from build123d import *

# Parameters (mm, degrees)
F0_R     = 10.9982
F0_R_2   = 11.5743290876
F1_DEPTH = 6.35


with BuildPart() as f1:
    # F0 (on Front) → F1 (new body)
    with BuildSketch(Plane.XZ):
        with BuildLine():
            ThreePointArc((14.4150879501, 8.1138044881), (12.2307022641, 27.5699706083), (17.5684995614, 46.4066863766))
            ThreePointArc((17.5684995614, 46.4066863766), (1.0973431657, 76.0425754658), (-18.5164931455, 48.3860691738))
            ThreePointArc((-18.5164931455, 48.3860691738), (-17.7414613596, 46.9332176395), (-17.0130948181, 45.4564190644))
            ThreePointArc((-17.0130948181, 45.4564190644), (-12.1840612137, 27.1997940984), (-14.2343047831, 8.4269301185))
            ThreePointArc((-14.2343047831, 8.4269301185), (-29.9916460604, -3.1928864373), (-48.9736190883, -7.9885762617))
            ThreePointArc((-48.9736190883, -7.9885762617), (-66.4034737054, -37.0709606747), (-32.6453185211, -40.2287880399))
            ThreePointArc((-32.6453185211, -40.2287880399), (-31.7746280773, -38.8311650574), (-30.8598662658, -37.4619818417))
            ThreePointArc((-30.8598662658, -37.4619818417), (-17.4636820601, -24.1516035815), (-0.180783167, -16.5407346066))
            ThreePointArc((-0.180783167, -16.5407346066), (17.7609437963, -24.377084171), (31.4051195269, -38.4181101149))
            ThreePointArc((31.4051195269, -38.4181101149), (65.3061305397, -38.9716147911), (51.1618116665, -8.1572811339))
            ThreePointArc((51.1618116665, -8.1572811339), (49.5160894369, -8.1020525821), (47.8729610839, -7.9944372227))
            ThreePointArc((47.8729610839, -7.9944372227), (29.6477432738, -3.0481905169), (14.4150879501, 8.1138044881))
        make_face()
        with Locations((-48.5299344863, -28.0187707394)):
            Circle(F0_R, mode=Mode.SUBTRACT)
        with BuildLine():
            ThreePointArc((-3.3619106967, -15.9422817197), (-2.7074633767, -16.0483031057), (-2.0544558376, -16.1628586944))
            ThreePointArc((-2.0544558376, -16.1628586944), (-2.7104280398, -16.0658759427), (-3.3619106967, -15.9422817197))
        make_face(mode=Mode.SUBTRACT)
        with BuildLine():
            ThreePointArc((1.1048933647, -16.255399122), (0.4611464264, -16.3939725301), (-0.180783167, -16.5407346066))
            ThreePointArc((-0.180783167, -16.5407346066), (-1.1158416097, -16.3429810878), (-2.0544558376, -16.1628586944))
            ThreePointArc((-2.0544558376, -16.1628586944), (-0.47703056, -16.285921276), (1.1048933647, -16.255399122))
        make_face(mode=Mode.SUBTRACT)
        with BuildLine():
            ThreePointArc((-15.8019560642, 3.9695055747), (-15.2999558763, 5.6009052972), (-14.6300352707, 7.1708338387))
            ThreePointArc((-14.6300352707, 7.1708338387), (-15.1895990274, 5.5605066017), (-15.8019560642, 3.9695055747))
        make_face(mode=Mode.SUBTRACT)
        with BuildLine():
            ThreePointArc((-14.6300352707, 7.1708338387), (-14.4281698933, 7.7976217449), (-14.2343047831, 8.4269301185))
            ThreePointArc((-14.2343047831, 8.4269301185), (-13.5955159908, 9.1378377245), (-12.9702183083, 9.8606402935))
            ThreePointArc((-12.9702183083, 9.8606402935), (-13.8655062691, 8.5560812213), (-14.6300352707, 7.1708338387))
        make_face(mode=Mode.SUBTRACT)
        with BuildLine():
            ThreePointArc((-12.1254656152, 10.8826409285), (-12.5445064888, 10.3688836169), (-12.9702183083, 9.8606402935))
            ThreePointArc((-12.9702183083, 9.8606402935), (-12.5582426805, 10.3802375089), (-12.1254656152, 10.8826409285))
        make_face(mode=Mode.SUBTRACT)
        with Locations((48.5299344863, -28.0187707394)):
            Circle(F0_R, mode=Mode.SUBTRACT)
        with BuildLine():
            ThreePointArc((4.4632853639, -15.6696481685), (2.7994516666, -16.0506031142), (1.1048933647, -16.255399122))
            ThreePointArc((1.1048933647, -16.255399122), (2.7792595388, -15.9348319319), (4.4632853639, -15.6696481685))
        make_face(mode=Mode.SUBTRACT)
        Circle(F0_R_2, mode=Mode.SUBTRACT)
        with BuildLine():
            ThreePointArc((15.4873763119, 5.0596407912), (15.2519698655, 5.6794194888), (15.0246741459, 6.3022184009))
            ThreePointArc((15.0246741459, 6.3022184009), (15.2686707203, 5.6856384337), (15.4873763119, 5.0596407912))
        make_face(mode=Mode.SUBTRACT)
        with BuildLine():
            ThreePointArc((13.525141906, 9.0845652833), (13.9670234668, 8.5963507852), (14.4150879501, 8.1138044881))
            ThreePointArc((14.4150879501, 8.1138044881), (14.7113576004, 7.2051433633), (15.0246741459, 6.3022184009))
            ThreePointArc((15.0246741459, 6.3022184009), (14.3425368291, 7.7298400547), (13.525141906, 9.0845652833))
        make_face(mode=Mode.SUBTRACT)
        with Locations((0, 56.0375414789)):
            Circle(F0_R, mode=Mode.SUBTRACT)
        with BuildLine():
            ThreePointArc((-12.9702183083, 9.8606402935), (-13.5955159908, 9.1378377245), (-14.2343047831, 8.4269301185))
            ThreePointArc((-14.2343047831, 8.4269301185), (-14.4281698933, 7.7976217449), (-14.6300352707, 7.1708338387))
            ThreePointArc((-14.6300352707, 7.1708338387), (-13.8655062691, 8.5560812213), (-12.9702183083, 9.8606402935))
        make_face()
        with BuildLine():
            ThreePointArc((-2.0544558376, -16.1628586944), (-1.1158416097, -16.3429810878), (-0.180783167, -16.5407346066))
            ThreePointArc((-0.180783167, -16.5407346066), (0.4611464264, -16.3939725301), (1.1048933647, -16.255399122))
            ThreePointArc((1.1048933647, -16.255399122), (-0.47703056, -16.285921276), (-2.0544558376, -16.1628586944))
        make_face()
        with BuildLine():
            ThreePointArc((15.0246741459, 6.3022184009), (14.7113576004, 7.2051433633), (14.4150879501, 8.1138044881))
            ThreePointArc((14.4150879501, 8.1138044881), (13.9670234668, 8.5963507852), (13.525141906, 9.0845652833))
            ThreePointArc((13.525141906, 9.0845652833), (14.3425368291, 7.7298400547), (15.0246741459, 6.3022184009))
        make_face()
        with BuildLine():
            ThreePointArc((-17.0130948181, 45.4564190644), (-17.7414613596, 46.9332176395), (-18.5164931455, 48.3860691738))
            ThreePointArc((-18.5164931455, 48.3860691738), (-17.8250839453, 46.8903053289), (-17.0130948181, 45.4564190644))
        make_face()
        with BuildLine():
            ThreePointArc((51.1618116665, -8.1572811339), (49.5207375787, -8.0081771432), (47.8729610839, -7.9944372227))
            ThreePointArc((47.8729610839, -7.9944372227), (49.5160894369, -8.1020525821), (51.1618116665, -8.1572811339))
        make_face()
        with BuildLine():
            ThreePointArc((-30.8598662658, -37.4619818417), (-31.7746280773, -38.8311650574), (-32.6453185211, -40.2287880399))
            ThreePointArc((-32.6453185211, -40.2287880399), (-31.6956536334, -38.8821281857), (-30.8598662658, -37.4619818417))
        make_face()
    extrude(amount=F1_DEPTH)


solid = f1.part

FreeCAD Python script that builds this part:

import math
import FreeCAD as App
import Part
import Sketcher
Q = App.Units.Quantity

doc = App.newDocument("Part")
params = doc.addObject("Spreadsheet::Sheet", "Params")
for row, (alias, value) in enumerate([
    ("sketch1_diameter", "0.866 in"),
    ("sketch1_diameter2", "0.866 in"),
    ("sketch1_diameter3", "0.866 in"),
    ("pad1_length", "0.25 in"),
], start=1):
    params.set(f"A{row}", alias)
    params.set(f"B{row}", "=" + value)
    params.setAlias(f"B{row}", alias)

body = doc.addObject("PartDesign::Body", "Body")

sketch1 = doc.addObject("Sketcher::SketchObject", "Sketch")
body.addObject(sketch1)
sketch1.AttachmentSupport = (doc.XZ_Plane, [""])
sketch1.MapMode = "FlatFace"
sketch1.addGeometry(Part.ArcOfCircle(Part.Circle(App.Vector(52.072578, 43.529661, 0), App.Vector(0, 0, 1), 51.694966), math.radians(-136.757083), math.radians(-94.659754)), False)
sketch1.addGeometry(Part.ArcOfCircle(Part.Circle(App.Vector(62.845266, 23.401871, 0), App.Vector(0, 0, 1), 50.785895), math.radians(153.065188), math.radians(197.519464)), False)
sketch1.addGeometry(Part.ArcOfCircle(Part.Circle(App.Vector(0, 56.037541, 0), App.Vector(0, 0, 1), 20.035108), math.radians(-28.731061), math.radians(202.451623)), False)
sketch1.addGeometry(Part.ArcOfCircle(Part.Circle(App.Vector(0, 56.037541, 0), App.Vector(0, 0, 1), 20.035108), math.radians(-157.548377), math.radians(-148.120871)), False)
sketch1.addGeometry(Part.ArcOfCircle(Part.Circle(App.Vector(-63.734081, 23.331345, 0), App.Vector(0, 0, 1), 51.694966), math.radians(-16.757083), math.radians(25.340246)), False)
sketch1.addGeometry(Part.ArcOfCircle(Part.Circle(App.Vector(-51.689248, 42.724661, 0), App.Vector(0, 0, 1), 50.785895), math.radians(-86.934812), math.radians(-42.480536)), False)
sketch1.addGeometry(Part.ArcOfCircle(Part.Circle(App.Vector(-48.529934, -28.018771, 0), App.Vector(0, 0, 1), 20.035108), math.radians(91.268939), math.radians(322.451623)), False)
sketch1.addGeometry(Part.ArcOfCircle(Part.Circle(App.Vector(-48.529934, -28.018771, 0), App.Vector(0, 0, 1), 20.035108), math.radians(-37.548377), math.radians(-28.120871)), False)
sketch1.addGeometry(Part.ArcOfCircle(Part.Circle(App.Vector(11.661503, -66.861006, 0), App.Vector(0, 0, 1), 51.694966), math.radians(103.242917), math.radians(145.340246)), False)
sketch1.addGeometry(Part.ArcOfCircle(Part.Circle(App.Vector(-11.156018, -66.126532, 0), App.Vector(0, 0, 1), 50.785895), math.radians(33.065188), math.radians(77.519464)), False)
sketch1.addGeometry(Part.ArcOfCircle(Part.Circle(App.Vector(48.529934, -28.018771, 0), App.Vector(0, 0, 1), 20.035108), math.radians(-148.731061), math.radians(82.451623)), False)
sketch1.addGeometry(Part.ArcOfCircle(Part.Circle(App.Vector(48.529934, -28.018771, 0), App.Vector(0, 0, 1), 20.035108), math.radians(82.451623), math.radians(91.879129)), False)
sketch1.addGeometry(Part.Circle(App.Vector(-48.529934, -28.018771, 0), App.Vector(0, 0, 1), 10.9982), False)
sketch1.addGeometry(Part.ArcOfCircle(Part.Circle(App.Vector(-11.156018, -66.126533, 0), App.Vector(0, 0, 1), 50.785895), math.radians(79.675997), math.radians(81.171932)), False)
sketch1.addGeometry(Part.ArcOfCircle(Part.Circle(App.Vector(0, 0, 0), App.Vector(0, 0, 1), 16.292906), math.radians(-101.908069), math.radians(-97.244002)), False)
sketch1.addGeometry(Part.Circle(App.Vector(0, 0, 0), App.Vector(0, 0, 1), 11.574329), False)
sketch1.addGeometry(Part.ArcOfCircle(Part.Circle(App.Vector(0, 0, 0), App.Vector(0, 0, 1), 16.292906), math.radians(153.888462), math.radians(165.898879)), False)
sketch1.addGeometry(Part.ArcOfCircle(Part.Circle(App.Vector(-63.734081, 23.331345, 0), App.Vector(0, 0, 1), 51.694966), math.radians(-21.995894), math.radians(-18.216765)), False)
sketch1.addGeometry(Part.ArcOfCircle(Part.Circle(App.Vector(-51.689248, 42.724662, 0), App.Vector(0, 0, 1), 50.785895), math.radians(-40.324003), math.radians(-38.828068)), False)
sketch1.addGeometry(Part.ArcOfCircle(Part.Circle(App.Vector(0, 0, 0), App.Vector(0, 0, 1), 16.292906), math.radians(138.091931), math.radians(142.755998)), False)
sketch1.addGeometry(Part.ArcOfCircle(Part.Circle(App.Vector(0, 0, 0), App.Vector(0, 0, 1), 16.292906), math.radians(-86.111538), math.radians(-74.101121)), False)
sketch1.addGeometry(Part.ArcOfCircle(Part.Circle(App.Vector(11.661503, -66.861006, 0), App.Vector(0, 0, 1), 51.694966), math.radians(98.004106), math.radians(101.783235)), False)
sketch1.addGeometry(Part.Circle(App.Vector(48.529934, -28.018771, 0), App.Vector(0, 0, 1), 10.9982), False)
sketch1.addGeometry(Part.ArcOfCircle(Part.Circle(App.Vector(62.845266, 23.401871, 0), App.Vector(0, 0, 1), 50.785895), math.radians(-160.324003), math.radians(-158.828068)), False)
sketch1.addGeometry(Part.ArcOfCircle(Part.Circle(App.Vector(0, 0, 0), App.Vector(0, 0, 1), 16.292906), math.radians(18.091931), math.radians(22.755998)), False)
sketch1.addGeometry(Part.Circle(App.Vector(0, 56.037541, 0), App.Vector(0, 0, 1), 10.9982), False)
sketch1.addConstraint(Sketcher.Constraint("Coincident", 0, 1, 1, 2))
sketch1.addConstraint(Sketcher.Constraint("Coincident", 1, 1, 2, 1))
sketch1.addConstraint(Sketcher.Constraint("Coincident", 2, 2, 3, 1))
sketch1.addConstraint(Sketcher.Constraint("Coincident", 3, 2, 4, 2))
sketch1.addConstraint(Sketcher.Constraint("Coincident", 4, 1, 5, 2))
sketch1.addConstraint(Sketcher.Constraint("Coincident", 5, 1, 6, 1))
sketch1.addConstraint(Sketcher.Constraint("Coincident", 6, 2, 7, 1))
sketch1.addConstraint(Sketcher.Constraint("Coincident", 7, 2, 8, 2))
sketch1.addConstraint(Sketcher.Constraint("Coincident", 8, 1, 9, 2))
sketch1.addConstraint(Sketcher.Constraint("Coincident", 9, 1, 10, 1))
sketch1.addConstraint(Sketcher.Constraint("Coincident", 10, 2, 11, 1))
sketch1.addConstraint(Sketcher.Constraint("Coincident", 11, 2, 0, 2))
sketch1.addConstraint(Sketcher.Constraint("Coincident", 13, 1, 14, 2))
sketch1.addConstraint(Sketcher.Constraint("Coincident", 14, 1, 13, 2))
sketch1.addConstraint(Sketcher.Constraint("Coincident", 16, 1, 17, 2))
sketch1.addConstraint(Sketcher.Constraint("Coincident", 17, 1, 16, 2))
sketch1.addConstraint(Sketcher.Constraint("Coincident", 18, 1, 19, 2))
sketch1.addConstraint(Sketcher.Constraint("Coincident", 19, 1, 18, 2))
sketch1.addConstraint(Sketcher.Constraint("Coincident", 20, 1, 21, 2))
sketch1.addConstraint(Sketcher.Constraint("Coincident", 21, 1, 20, 2))
sketch1.addConstraint(Sketcher.Constraint("Coincident", 23, 1, 24, 2))
sketch1.addConstraint(Sketcher.Constraint("Coincident", 24, 1, 23, 2))
sketch1.addConstraint(Sketcher.Constraint("Coincident", 14, 3, -1, 1))
sketch1.addConstraint(Sketcher.Constraint("Coincident", 15, 3, -1, 1))
sketch1.addConstraint(Sketcher.Constraint("Coincident", 16, 3, -1, 1))
sketch1.addConstraint(Sketcher.Constraint("Coincident", 19, 3, -1, 1))
sketch1.addConstraint(Sketcher.Constraint("Coincident", 20, 3, -1, 1))
sketch1.addConstraint(Sketcher.Constraint("Coincident", 24, 3, -1, 1))
sketch1.addConstraint(Sketcher.Constraint("Coincident", 3, 3, 2, 3))
sketch1.addConstraint(Sketcher.Constraint("Coincident", 7, 3, 6, 3))
sketch1.addConstraint(Sketcher.Constraint("Coincident", 11, 3, 10, 3))
sketch1.addConstraint(Sketcher.Constraint("Coincident", 12, 3, 6, 3))
sketch1.addConstraint(Sketcher.Constraint("Coincident", 13, 3, 9, 3))
sketch1.addConstraint(Sketcher.Constraint("Coincident", 17, 3, 4, 3))
sketch1.addConstraint(Sketcher.Constraint("Coincident", 18, 3, 5, 3))
sketch1.addConstraint(Sketcher.Constraint("Coincident", 21, 3, 8, 3))
sketch1.addConstraint(Sketcher.Constraint("Coincident", 22, 3, 10, 3))
sketch1.addConstraint(Sketcher.Constraint("Coincident", 23, 3, 1, 3))
sketch1.addConstraint(Sketcher.Constraint("Coincident", 25, 3, 2, 3))
sketch1.addConstraint(Sketcher.Constraint("PointOnObject", 2, 3, -2))
sketch1.addConstraint(Sketcher.Constraint("Diameter", 12, Q("0.866 in")))
sketch1.addConstraint(Sketcher.Constraint("Diameter", 22, Q("0.866 in")))
sketch1.addConstraint(Sketcher.Constraint("Diameter", 25, Q("0.866 in")))
sketch1.addConstraint(Sketcher.Constraint("Diameter", 15, Q("23.148658 mm")))
sketch1.addConstraint(Sketcher.Constraint("Radius", 0, Q("51.694966 mm")))
sketch1.addConstraint(Sketcher.Constraint("Radius", 1, Q("50.785895 mm")))
sketch1.addConstraint(Sketcher.Constraint("Radius", 2, Q("20.035108 mm")))
sketch1.addConstraint(Sketcher.Constraint("Radius", 4, Q("51.694966 mm")))
sketch1.addConstraint(Sketcher.Constraint("Radius", 5, Q("50.785895 mm")))
sketch1.addConstraint(Sketcher.Constraint("Radius", 6, Q("20.035108 mm")))
sketch1.addConstraint(Sketcher.Constraint("Radius", 8, Q("51.694966 mm")))
sketch1.addConstraint(Sketcher.Constraint("Radius", 9, Q("50.785895 mm")))
sketch1.addConstraint(Sketcher.Constraint("Radius", 10, Q("20.035108 mm")))
sketch1.addConstraint(Sketcher.Constraint("Radius", 13, Q("50.785895 mm")))
sketch1.addConstraint(Sketcher.Constraint("Radius", 14, Q("16.292906 mm")))
sketch1.addConstraint(Sketcher.Constraint("Radius", 16, Q("16.292906 mm")))
sketch1.addConstraint(Sketcher.Constraint("Radius", 17, Q("51.694966 mm")))
sketch1.addConstraint(Sketcher.Constraint("Radius", 18, Q("50.785895 mm")))
sketch1.addConstraint(Sketcher.Constraint("Radius", 19, Q("16.292906 mm")))
sketch1.addConstraint(Sketcher.Constraint("Radius", 20, Q("16.292906 mm")))
sketch1.addConstraint(Sketcher.Constraint("Radius", 21, Q("51.694966 mm")))
sketch1.addConstraint(Sketcher.Constraint("Radius", 23, Q("50.785895 mm")))
sketch1.addConstraint(Sketcher.Constraint("Radius", 24, Q("16.292906 mm")))
sketch1.addConstraint(Sketcher.Constraint("DistanceX", -1, 1, 1, 1, Q("17.5685 mm")))
sketch1.addConstraint(Sketcher.Constraint("DistanceY", 20, 1, -1, 1, Q("16.255399 mm")))
sketch1.addConstraint(Sketcher.Constraint("DistanceY", 5, 3, 0, 3, Q("0.804999 mm")))
sketch1.addConstraint(Sketcher.Constraint("DistanceX", 6, 3, 1, 3, Q("111.3752 mm")))
sketch1.addConstraint(Sketcher.Constraint("DistanceX", 2, 2, 3, 2, Q("1.503398 mm")))
sketch1.addConstraint(Sketcher.Constraint("DistanceX", 6, 2, 9, 3, Q("21.4893 mm")))
sketch1.addConstraint(Sketcher.Constraint("DistanceY", 18, 1, 19, 1, Q("1.022001 mm")))
sketch1.addConstraint(Sketcher.Constraint("DistanceX", -1, 1, 0, 3, Q("52.072578 mm")))
sketch1.addConstraint(Sketcher.Constraint("DistanceY", -1, 1, 0, 3, Q("43.529661 mm")))
sketch1.addConstraint(Sketcher.Constraint("DistanceY", -1, 1, 1, 3, Q("23.401871 mm")))
sketch1.addConstraint(Sketcher.Constraint("DistanceY", -1, 1, 2, 3, Q("56.037541 mm")))
sketch1.addConstraint(Sketcher.Constraint("DistanceX", 4, 3, -1, 1, Q("63.734081 mm")))
sketch1.addConstraint(Sketcher.Constraint("DistanceY", 6, 3, -1, 1, Q("28.018771 mm")))
sketch1.addConstraint(Sketcher.Constraint("DistanceX", 9, 3, -1, 1, Q("11.156018 mm")))
sketch1.addConstraint(Sketcher.Constraint("DistanceY", 10, 3, -1, 1, Q("28.018771 mm")))
sketch1.addConstraint(Sketcher.Constraint("DistanceY", -1, 1, 2, 2, Q("48.386069 mm")))
sketch1.addConstraint(Sketcher.Constraint("DistanceY", 7, 2, -1, 1, Q("37.461982 mm")))
sketch1.addConstraint(Sketcher.Constraint("DistanceX", -1, 1, 9, 1, Q("31.40512 mm")))
sketch1.addConstraint(Sketcher.Constraint("DistanceY", 9, 1, -1, 1, Q("38.41811 mm")))
sketch1.addConstraint(Sketcher.Constraint("DistanceX", -1, 1, 10, 2, Q("51.161812 mm")))
sketch1.setExpression("Constraints[40]", "Params.sketch1_diameter")
sketch1.setExpression("Constraints[41]", "Params.sketch1_diameter2")
sketch1.setExpression("Constraints[42]", "Params.sketch1_diameter3")
pad1 = doc.addObject("PartDesign::Pad", "Pad")
body.addObject(pad1)
pad1.Profile = sketch1
pad1.setExpression("Length", "Params.pad1_length")

doc.recompute()
